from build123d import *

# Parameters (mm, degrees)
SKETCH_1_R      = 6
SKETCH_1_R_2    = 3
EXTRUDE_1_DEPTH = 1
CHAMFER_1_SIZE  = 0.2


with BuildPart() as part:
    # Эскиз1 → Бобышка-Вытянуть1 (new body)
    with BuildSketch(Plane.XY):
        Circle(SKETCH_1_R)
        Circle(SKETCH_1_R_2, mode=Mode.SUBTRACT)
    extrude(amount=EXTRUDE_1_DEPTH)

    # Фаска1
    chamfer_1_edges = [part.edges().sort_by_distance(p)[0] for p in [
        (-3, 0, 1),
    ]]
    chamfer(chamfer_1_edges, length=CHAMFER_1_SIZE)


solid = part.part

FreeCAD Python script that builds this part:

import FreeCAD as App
import Part
import Sketcher
from FreeCAD import Vector


def edges_at(feature, points):
    """Names of the edges that pass closest to the given points."""
    edges = feature.Shape.Edges
    near = lambda p: min(range(len(edges)), key=lambda i: edges[i].distToShape(Part.Vertex(*p))[0])
    return sorted({f"Edge{near(p) + 1}" for p in points})

doc = App.newDocument("Part")
body = doc.addObject("PartDesign::Body", "Body")

# Sketch on XY plane
sketch1 = doc.addObject("Sketcher::SketchObject", "Sketch")
body.addObject(sketch1)
sketch1.AttachmentSupport = (doc.XY_Plane, [""])
sketch1.MapMode = "FlatFace"
sketch1.addGeometry(Part.Circle(Vector(0, 0, 0), Vector(0, 0, 1), 6), False)
sketch1.addGeometry(Part.Circle(Vector(0, 0, 0), Vector(0, 0, 1), 3), False)
sketch1.addConstraint(Sketcher.Constraint("Coincident", 0, 3, -1, 1))
sketch1.addConstraint(Sketcher.Constraint("Coincident", 1, 3, -1, 1))
sketch1.addConstraint(Sketcher.Constraint("Diameter", 0, 12.0))
sketch1.addConstraint(Sketcher.Constraint("Diameter", 1, 6.0))
pad1 = doc.addObject("PartDesign::Pad", "Pad")
body.addObject(pad1)
pad1.Profile = sketch1
pad1.Length = 1
doc.recompute()

chamfer = doc.addObject("PartDesign::Chamfer", "Chamfer")
body.addObject(chamfer)
chamfer.Base = (pad1, edges_at(pad1, [(-3, 0, 1)]))
chamfer.Size = 0.2

doc.recompute()
